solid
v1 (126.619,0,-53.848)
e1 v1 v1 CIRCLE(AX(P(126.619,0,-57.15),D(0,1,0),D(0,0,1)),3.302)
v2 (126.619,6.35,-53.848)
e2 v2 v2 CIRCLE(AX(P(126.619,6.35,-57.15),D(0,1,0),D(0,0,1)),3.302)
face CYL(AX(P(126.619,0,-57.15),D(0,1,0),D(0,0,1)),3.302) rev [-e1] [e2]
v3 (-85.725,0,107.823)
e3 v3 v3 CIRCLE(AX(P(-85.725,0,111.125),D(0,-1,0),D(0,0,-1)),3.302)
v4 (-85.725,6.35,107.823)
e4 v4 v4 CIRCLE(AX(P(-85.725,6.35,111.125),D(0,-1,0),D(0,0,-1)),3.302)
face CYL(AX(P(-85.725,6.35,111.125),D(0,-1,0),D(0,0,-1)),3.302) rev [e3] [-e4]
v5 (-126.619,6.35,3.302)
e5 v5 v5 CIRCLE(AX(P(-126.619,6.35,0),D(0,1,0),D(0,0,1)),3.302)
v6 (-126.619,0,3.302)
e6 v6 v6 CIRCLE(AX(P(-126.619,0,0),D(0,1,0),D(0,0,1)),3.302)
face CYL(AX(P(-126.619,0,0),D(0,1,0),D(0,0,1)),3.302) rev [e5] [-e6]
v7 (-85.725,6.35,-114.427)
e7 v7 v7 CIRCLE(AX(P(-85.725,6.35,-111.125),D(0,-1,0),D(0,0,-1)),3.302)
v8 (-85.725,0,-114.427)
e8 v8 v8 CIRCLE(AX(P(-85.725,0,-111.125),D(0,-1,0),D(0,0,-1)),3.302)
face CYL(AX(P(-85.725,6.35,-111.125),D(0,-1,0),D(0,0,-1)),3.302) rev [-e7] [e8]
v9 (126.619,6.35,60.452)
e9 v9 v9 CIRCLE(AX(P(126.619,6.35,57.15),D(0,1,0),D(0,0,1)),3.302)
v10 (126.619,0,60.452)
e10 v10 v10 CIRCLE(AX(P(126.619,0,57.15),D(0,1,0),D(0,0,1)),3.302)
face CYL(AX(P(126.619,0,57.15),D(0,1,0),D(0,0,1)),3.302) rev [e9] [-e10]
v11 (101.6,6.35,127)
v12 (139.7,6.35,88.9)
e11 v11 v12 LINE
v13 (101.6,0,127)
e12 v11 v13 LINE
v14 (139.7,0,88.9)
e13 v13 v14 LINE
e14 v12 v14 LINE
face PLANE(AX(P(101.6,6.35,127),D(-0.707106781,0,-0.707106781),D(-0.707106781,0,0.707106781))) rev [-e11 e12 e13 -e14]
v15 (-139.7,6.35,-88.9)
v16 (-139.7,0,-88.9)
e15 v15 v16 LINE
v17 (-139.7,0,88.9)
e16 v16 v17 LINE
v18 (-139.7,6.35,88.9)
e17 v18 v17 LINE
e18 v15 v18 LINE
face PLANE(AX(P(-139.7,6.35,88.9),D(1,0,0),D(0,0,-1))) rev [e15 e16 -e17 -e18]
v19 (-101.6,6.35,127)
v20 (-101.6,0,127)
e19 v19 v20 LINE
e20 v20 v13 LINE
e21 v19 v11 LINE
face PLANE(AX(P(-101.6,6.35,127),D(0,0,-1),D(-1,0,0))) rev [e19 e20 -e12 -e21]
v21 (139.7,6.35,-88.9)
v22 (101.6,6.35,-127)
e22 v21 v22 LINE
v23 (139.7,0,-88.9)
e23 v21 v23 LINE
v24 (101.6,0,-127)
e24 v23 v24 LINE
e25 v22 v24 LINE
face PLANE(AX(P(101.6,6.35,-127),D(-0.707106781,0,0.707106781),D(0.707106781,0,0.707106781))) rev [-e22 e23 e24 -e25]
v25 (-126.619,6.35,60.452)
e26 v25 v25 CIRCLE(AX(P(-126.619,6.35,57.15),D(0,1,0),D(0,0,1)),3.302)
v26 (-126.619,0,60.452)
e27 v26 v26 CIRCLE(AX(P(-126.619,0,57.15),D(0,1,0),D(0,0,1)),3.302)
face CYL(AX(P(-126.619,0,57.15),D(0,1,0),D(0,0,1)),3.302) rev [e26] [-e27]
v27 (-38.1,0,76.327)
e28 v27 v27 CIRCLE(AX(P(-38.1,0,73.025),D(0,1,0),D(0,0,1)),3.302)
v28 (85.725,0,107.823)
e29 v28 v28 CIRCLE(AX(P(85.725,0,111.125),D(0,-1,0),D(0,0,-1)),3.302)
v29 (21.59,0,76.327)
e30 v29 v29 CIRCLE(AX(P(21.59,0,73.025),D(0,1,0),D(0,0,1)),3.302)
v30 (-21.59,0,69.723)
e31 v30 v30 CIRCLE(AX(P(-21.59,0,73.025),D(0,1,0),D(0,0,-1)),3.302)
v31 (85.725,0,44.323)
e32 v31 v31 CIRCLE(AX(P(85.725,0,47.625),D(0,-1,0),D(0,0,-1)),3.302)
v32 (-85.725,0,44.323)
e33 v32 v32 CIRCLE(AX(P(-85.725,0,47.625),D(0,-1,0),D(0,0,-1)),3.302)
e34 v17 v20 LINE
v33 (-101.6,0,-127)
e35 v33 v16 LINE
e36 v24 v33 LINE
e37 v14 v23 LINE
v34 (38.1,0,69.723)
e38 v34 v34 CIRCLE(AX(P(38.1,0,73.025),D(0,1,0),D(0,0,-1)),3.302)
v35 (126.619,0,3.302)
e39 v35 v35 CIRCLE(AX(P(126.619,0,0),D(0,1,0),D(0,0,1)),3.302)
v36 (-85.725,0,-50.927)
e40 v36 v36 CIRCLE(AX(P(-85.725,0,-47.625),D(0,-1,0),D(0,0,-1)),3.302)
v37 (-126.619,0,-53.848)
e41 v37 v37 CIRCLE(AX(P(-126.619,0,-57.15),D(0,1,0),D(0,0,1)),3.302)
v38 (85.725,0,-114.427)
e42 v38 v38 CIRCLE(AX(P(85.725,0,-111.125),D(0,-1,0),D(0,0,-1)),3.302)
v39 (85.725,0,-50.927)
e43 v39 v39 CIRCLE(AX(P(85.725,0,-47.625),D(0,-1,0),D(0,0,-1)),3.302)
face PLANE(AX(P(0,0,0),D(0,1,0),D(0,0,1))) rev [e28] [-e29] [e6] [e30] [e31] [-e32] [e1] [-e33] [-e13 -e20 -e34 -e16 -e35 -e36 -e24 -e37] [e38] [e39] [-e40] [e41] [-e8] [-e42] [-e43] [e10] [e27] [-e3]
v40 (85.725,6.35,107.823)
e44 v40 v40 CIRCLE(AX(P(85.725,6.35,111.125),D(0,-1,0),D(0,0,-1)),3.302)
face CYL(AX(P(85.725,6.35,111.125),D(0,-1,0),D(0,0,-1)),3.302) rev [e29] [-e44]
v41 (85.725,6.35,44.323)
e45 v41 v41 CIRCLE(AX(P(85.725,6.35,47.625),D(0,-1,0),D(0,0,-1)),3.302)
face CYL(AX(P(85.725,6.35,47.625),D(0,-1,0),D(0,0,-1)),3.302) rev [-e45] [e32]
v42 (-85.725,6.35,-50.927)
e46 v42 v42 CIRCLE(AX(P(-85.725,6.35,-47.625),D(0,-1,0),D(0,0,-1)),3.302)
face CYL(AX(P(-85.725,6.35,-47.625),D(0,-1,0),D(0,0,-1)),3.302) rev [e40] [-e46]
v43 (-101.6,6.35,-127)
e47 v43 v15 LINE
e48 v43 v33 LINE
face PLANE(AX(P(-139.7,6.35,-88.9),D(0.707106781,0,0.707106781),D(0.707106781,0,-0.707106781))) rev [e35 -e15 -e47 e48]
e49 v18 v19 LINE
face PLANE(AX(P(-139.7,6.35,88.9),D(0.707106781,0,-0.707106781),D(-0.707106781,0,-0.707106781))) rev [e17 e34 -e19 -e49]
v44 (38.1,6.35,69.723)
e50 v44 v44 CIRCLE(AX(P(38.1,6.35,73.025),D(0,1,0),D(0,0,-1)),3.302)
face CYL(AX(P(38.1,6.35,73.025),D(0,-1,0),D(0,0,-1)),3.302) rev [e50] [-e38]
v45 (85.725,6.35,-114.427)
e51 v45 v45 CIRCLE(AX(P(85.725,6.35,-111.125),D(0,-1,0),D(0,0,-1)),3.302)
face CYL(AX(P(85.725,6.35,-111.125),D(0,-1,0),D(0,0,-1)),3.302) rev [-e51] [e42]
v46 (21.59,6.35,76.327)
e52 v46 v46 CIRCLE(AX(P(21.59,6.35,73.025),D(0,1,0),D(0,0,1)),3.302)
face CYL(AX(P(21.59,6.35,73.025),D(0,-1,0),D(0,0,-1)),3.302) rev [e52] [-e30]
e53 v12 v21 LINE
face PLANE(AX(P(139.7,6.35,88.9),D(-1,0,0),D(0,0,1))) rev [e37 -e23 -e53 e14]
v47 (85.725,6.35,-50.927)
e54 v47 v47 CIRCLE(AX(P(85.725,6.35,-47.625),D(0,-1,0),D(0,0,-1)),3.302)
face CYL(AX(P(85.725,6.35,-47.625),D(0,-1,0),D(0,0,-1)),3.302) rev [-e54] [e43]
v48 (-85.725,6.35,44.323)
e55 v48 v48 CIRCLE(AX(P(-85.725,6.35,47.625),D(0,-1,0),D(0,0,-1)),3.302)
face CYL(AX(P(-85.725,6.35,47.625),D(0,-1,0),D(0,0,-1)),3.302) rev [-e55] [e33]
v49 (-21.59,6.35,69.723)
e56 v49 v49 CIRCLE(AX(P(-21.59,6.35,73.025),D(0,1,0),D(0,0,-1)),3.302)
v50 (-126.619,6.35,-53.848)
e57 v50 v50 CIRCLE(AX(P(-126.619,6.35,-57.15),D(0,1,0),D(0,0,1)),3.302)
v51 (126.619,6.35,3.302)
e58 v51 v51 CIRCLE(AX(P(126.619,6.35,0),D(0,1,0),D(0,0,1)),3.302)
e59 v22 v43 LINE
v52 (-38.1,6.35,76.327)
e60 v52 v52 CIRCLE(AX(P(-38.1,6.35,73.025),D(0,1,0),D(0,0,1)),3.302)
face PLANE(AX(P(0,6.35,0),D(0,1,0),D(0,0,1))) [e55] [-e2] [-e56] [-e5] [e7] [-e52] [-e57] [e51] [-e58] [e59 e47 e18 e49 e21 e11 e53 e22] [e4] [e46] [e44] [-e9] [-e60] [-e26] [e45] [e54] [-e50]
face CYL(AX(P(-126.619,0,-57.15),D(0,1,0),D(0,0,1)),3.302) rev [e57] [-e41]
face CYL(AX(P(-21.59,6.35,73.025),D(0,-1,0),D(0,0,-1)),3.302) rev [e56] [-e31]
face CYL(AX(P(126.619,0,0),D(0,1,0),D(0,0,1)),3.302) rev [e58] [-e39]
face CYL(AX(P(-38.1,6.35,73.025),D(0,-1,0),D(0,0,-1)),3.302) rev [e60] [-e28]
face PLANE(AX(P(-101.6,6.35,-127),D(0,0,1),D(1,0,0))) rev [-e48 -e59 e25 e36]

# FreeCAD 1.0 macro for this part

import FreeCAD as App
import Part
import Sketcher
from FreeCAD import Vector
Q = App.Units.Quantity

doc = App.newDocument("Part")
body = doc.addObject("PartDesign::Body", "Body")

sketch1 = doc.addObject("Sketcher::SketchObject", "Sketch")
body.addObject(sketch1)
sketch1.AttachmentSupport = (doc.XZ_Plane, [""])
sketch1.MapMode = "FlatFace"
sketch1.addGeometry(Part.LineSegment(Vector(-139.7, -88.9, 0), Vector(-139.7, 88.9, 0)), False)
sketch1.addGeometry(Part.LineSegment(Vector(-139.7, 88.9, 0), Vector(-101.6, 127, 0)), False)
sketch1.addGeometry(Part.LineSegment(Vector(-101.6, 127, 0), Vector(101.6, 127, 0)), False)
sketch1.addGeometry(Part.LineSegment(Vector(101.6, 127, 0), Vector(139.7, 88.9, 0)), False)
sketch1.addGeometry(Part.LineSegment(Vector(139.7, 88.9, 0), Vector(139.7, -88.9, 0)), False)
sketch1.addGeometry(Part.LineSegment(Vector(139.7, -88.9, 0), Vector(101.6, -127, 0)), False)
sketch1.addGeometry(Part.LineSegment(Vector(101.6, -127, 0), Vector(-101.6, -127, 0)), False)
sketch1.addGeometry(Part.LineSegment(Vector(-101.6, -127, 0), Vector(-139.7, -88.9, 0)), False)
sketch1.addGeometry(Part.Circle(Vector(38.1, 73, 0), Vector(0, 0, 1), 3.3), False)
sketch1.addGeometry(Part.Circle(Vector(21.6, 73, 0), Vector(0, 0, 1), 3.3), False)
sketch1.addGeometry(Part.Circle(Vector(-21.6, 73, 0), Vector(0, 0, 1), 3.3), False)
sketch1.addGeometry(Part.Circle(Vector(-38.1, 73, 0), Vector(0, 0, 1), 3.3), False)
sketch1.addConstraint(Sketcher.Constraint("Coincident", 0, 2, 1, 1))
sketch1.addConstraint(Sketcher.Constraint("Coincident", 1, 2, 2, 1))
sketch1.addConstraint(Sketcher.Constraint("Coincident", 2, 2, 3, 1))
sketch1.addConstraint(Sketcher.Constraint("Coincident", 3, 2, 4, 1))
sketch1.addConstraint(Sketcher.Constraint("Coincident", 4, 2, 5, 1))
sketch1.addConstraint(Sketcher.Constraint("Coincident", 5, 2, 6, 1))
sketch1.addConstraint(Sketcher.Constraint("Coincident", 6, 2, 7, 1))
sketch1.addConstraint(Sketcher.Constraint("Coincident", 7, 2, 0, 1))
sketch1.addConstraint(Sketcher.Constraint("Vertical", 0))
sketch1.addConstraint(Sketcher.Constraint("Horizontal", 2))
sketch1.addConstraint(Sketcher.Constraint("Vertical", 4))
sketch1.addConstraint(Sketcher.Constraint("Horizontal", 6))
sketch1.addConstraint(Sketcher.Constraint("Equal", 8, 9))
sketch1.addConstraint(Sketcher.Constraint("Equal", 9, 10))
sketch1.addConstraint(Sketcher.Constraint("Equal", 10, 11))
sketch1.addConstraint(Sketcher.Constraint("Symmetric", 0, 2, 4, 2, -1, 1))
sketch1.addConstraint(Sketcher.Constraint("Symmetric", 1, 2, 5, 2, -1, 1))
sketch1.addConstraint(Sketcher.Constraint("Symmetric", 9, 3, 10, 3, -2))
sketch1.addConstraint(Sketcher.Constraint("Symmetric", 8, 3, 11, 3, -2))
sketch1.addConstraint(Sketcher.Constraint("Perpendicular", 1, 3))
sketch1.addConstraint(Sketcher.Constraint("Perpendicular", 5, 7))
sketch1.addConstraint(Sketcher.Constraint("Horizontal", 8, 3, 9, 3))
sketch1.addConstraint(Sketcher.Constraint("Horizontal", 0, 2, 3, 2))
sketch1.addConstraint(Sketcher.Constraint("Horizontal", 4, 2, 7, 2))
sketch1.addConstraint(Sketcher.Constraint("Vertical", 2, 2, 5, 2))
sketch1.addConstraint(Sketcher.Constraint("Diameter", 8, Q("0.26 in")))
sketch1.addConstraint(Sketcher.Constraint("DistanceX", 2, 1, 2, 2, Q("8 in")))
sketch1.addConstraint(Sketcher.Constraint("DistanceY", 0, 1, 0, 2, Q("7 in")))
sketch1.addConstraint(Sketcher.Constraint("DistanceY", -1, 1, 1, 2, Q("5 in")))
sketch1.addConstraint(Sketcher.Constraint("DistanceX", 11, 3, 8, 3, Q("3 in")))
sketch1.addConstraint(Sketcher.Constraint("DistanceX", 10, 3, 9, 3, Q("1.7 in")))
sketch1.addConstraint(Sketcher.Constraint("DistanceY", -1, 1, 8, 3, Q("2.875 in")))
pad1 = doc.addObject("PartDesign::Pad", "Pad")
body.addObject(pad1)
pad1.Profile = sketch1
pad1.Length = Q("0.25 in")
pad1.Reversed = True

sketch2 = doc.addObject("Sketcher::SketchObject", "Sketch001")
body.addObject(sketch2)
sketch2.AttachmentSupport = (doc.XZ_Plane, [""])
sketch2.MapMode = "FlatFace"
sketch2.AttachmentOffset = App.Placement(Vector(0, 0, -0.25 * 25.4), App.Rotation())
sketch2.addGeometry(Part.Circle(Vector(-126.6, -57.1, 0), Vector(0, 0, 1), 3.3), False)
sketch2.addGeometry(Part.Circle(Vector(-126.6, 57.1, 0), Vector(0, 0, 1), 3.3), False)
sketch2.addGeometry(Part.Circle(Vector(126.6, 57.1, 0), Vector(0, 0, 1), 3.3), False)
sketch2.addGeometry(Part.Circle(Vector(126.6, 0, 0), Vector(0, 0, 1), 3.3), False)
sketch2.addGeometry(Part.Circle(Vector(126.6, -57.1, 0), Vector(0, 0, 1), 3.3), False)
sketch2.addGeometry(Part.Circle(Vector(-126.6, 0, 0), Vector(0, 0, 1), 3.3), False)
sketch2.addConstraint(Sketcher.Constraint("Equal", 0, 1))
sketch2.addConstraint(Sketcher.Constraint("Equal", 1, 2))
sketch2.addConstraint(Sketcher.Constraint("Equal", 2, 3))
sketch2.addConstraint(Sketcher.Constraint("Equal", 3, 4))
sketch2.addConstraint(Sketcher.Constraint("Equal", 4, 5))
sketch2.addConstraint(Sketcher.Constraint("Symmetric", 0, 3, 2, 3, -1, 1))
sketch2.addConstraint(Sketcher.Constraint("Symmetric", 1, 3, 4, 3, -1, 1))
sketch2.addConstraint(Sketcher.Constraint("Symmetric", 3, 3, 5, 3, -1, 1))
sketch2.addConstraint(Sketcher.Constraint("Symmetric", 1, 3, 2, 3, -2))
sketch2.addConstraint(Sketcher.Constraint("PointOnObject", 3, 3, -1))
sketch2.addConstraint(Sketcher.Constraint("Vertical", 2, 3, 3, 3))
sketch2.addConstraint(Sketcher.Constraint("Diameter", 0, Q("0.26 in")))
sketch2.addConstraint(Sketcher.Constraint("DistanceY", 0, 3, 1, 3, Q("4.5 in")))
sketch2.addConstraint(Sketcher.Constraint("DistanceX", 1, 3, 2, 3, Q("9.97 in")))
pocket1 = doc.addObject("PartDesign::Pocket", "Pocket")
body.addObject(pocket1)
pocket1.Profile = sketch2
pocket1.Type = "ThroughAll"
pocket1.Reversed = True

sketch3 = doc.addObject("Sketcher::SketchObject", "Sketch002")
body.addObject(sketch3)
sketch3.AttachmentSupport = (doc.XZ_Plane, [""])
sketch3.MapMode = "FlatFace"
sketch3.addGeometry(Part.Circle(Vector(-85.7, 111.1, 0), Vector(0, 0, 1), 3.3), False)
sketch3.addGeometry(Part.Circle(Vector(-85.7, -111.1, 0), Vector(0, 0, 1), 3.3), False)
sketch3.addGeometry(Part.Circle(Vector(85.7, -111.1, 0), Vector(0, 0, 1), 3.3), False)
sketch3.addGeometry(Part.Circle(Vector(85.7, -47.6, 0), Vector(0, 0, 1), 3.3), False)
sketch3.addGeometry(Part.Circle(Vector(85.7, 47.6, 0), Vector(0, 0, 1), 3.3), False)
sketch3.addGeometry(Part.Circle(Vector(85.7, 111.1, 0), Vector(0, 0, 1), 3.3), False)
sketch3.addGeometry(Part.Circle(Vector(-85.7, 47.6, 0), Vector(0, 0, 1), 3.3), False)
sketch3.addGeometry(Part.Circle(Vector(-85.7, -47.6, 0), Vector(0, 0, 1), 3.3), False)
sketch3.addConstraint(Sketcher.Constraint("Equal", 0, 1))
sketch3.addConstraint(Sketcher.Constraint("Equal", 1, 2))
sketch3.addConstraint(Sketcher.Constraint("Equal", 2, 3))
sketch3.addConstraint(Sketcher.Constraint("Equal", 3, 4))
sketch3.addConstraint(Sketcher.Constraint("Equal", 4, 5))
sketch3.addConstraint(Sketcher.Constraint("Equal", 5, 6))
sketch3.addConstraint(Sketcher.Constraint("Equal", 6, 7))
sketch3.addConstraint(Sketcher.Constraint("Symmetric", 0, 3, 2, 3, -1, 1))
sketch3.addConstraint(Sketcher.Constraint("Symmetric", 1, 3, 5, 3, -1, 1))
sketch3.addConstraint(Sketcher.Constraint("Symmetric", 3, 3, 6, 3, -1, 1))
sketch3.addConstraint(Sketcher.Constraint("Symmetric", 4, 3, 7, 3, -1, 1))
sketch3.addConstraint(Sketcher.Constraint("Symmetric", 1, 3, 2, 3, -2))
sketch3.addConstraint(Sketcher.Constraint("Symmetric", 4, 3, 6, 3, -2))
sketch3.addConstraint(Sketcher.Constraint("Vertical", 2, 3, 3, 3))
sketch3.addConstraint(Sketcher.Constraint("Diameter", 0, Q("0.26 in")))
sketch3.addConstraint(Sketcher.Constraint("DistanceY", 2, 3, 3, 3, Q("2.5 in")))
sketch3.addConstraint(Sketcher.Constraint("DistanceY", 1, 3, 0, 3, Q("8.75 in")))
sketch3.addConstraint(Sketcher.Constraint("DistanceX", 1, 3, 2, 3, Q("6.75 in")))
pocket2 = doc.addObject("PartDesign::Pocket", "Pocket001")
body.addObject(pocket2)
pocket2.Profile = sketch3
pocket2.Type = "ThroughAll"

doc.recompute()
